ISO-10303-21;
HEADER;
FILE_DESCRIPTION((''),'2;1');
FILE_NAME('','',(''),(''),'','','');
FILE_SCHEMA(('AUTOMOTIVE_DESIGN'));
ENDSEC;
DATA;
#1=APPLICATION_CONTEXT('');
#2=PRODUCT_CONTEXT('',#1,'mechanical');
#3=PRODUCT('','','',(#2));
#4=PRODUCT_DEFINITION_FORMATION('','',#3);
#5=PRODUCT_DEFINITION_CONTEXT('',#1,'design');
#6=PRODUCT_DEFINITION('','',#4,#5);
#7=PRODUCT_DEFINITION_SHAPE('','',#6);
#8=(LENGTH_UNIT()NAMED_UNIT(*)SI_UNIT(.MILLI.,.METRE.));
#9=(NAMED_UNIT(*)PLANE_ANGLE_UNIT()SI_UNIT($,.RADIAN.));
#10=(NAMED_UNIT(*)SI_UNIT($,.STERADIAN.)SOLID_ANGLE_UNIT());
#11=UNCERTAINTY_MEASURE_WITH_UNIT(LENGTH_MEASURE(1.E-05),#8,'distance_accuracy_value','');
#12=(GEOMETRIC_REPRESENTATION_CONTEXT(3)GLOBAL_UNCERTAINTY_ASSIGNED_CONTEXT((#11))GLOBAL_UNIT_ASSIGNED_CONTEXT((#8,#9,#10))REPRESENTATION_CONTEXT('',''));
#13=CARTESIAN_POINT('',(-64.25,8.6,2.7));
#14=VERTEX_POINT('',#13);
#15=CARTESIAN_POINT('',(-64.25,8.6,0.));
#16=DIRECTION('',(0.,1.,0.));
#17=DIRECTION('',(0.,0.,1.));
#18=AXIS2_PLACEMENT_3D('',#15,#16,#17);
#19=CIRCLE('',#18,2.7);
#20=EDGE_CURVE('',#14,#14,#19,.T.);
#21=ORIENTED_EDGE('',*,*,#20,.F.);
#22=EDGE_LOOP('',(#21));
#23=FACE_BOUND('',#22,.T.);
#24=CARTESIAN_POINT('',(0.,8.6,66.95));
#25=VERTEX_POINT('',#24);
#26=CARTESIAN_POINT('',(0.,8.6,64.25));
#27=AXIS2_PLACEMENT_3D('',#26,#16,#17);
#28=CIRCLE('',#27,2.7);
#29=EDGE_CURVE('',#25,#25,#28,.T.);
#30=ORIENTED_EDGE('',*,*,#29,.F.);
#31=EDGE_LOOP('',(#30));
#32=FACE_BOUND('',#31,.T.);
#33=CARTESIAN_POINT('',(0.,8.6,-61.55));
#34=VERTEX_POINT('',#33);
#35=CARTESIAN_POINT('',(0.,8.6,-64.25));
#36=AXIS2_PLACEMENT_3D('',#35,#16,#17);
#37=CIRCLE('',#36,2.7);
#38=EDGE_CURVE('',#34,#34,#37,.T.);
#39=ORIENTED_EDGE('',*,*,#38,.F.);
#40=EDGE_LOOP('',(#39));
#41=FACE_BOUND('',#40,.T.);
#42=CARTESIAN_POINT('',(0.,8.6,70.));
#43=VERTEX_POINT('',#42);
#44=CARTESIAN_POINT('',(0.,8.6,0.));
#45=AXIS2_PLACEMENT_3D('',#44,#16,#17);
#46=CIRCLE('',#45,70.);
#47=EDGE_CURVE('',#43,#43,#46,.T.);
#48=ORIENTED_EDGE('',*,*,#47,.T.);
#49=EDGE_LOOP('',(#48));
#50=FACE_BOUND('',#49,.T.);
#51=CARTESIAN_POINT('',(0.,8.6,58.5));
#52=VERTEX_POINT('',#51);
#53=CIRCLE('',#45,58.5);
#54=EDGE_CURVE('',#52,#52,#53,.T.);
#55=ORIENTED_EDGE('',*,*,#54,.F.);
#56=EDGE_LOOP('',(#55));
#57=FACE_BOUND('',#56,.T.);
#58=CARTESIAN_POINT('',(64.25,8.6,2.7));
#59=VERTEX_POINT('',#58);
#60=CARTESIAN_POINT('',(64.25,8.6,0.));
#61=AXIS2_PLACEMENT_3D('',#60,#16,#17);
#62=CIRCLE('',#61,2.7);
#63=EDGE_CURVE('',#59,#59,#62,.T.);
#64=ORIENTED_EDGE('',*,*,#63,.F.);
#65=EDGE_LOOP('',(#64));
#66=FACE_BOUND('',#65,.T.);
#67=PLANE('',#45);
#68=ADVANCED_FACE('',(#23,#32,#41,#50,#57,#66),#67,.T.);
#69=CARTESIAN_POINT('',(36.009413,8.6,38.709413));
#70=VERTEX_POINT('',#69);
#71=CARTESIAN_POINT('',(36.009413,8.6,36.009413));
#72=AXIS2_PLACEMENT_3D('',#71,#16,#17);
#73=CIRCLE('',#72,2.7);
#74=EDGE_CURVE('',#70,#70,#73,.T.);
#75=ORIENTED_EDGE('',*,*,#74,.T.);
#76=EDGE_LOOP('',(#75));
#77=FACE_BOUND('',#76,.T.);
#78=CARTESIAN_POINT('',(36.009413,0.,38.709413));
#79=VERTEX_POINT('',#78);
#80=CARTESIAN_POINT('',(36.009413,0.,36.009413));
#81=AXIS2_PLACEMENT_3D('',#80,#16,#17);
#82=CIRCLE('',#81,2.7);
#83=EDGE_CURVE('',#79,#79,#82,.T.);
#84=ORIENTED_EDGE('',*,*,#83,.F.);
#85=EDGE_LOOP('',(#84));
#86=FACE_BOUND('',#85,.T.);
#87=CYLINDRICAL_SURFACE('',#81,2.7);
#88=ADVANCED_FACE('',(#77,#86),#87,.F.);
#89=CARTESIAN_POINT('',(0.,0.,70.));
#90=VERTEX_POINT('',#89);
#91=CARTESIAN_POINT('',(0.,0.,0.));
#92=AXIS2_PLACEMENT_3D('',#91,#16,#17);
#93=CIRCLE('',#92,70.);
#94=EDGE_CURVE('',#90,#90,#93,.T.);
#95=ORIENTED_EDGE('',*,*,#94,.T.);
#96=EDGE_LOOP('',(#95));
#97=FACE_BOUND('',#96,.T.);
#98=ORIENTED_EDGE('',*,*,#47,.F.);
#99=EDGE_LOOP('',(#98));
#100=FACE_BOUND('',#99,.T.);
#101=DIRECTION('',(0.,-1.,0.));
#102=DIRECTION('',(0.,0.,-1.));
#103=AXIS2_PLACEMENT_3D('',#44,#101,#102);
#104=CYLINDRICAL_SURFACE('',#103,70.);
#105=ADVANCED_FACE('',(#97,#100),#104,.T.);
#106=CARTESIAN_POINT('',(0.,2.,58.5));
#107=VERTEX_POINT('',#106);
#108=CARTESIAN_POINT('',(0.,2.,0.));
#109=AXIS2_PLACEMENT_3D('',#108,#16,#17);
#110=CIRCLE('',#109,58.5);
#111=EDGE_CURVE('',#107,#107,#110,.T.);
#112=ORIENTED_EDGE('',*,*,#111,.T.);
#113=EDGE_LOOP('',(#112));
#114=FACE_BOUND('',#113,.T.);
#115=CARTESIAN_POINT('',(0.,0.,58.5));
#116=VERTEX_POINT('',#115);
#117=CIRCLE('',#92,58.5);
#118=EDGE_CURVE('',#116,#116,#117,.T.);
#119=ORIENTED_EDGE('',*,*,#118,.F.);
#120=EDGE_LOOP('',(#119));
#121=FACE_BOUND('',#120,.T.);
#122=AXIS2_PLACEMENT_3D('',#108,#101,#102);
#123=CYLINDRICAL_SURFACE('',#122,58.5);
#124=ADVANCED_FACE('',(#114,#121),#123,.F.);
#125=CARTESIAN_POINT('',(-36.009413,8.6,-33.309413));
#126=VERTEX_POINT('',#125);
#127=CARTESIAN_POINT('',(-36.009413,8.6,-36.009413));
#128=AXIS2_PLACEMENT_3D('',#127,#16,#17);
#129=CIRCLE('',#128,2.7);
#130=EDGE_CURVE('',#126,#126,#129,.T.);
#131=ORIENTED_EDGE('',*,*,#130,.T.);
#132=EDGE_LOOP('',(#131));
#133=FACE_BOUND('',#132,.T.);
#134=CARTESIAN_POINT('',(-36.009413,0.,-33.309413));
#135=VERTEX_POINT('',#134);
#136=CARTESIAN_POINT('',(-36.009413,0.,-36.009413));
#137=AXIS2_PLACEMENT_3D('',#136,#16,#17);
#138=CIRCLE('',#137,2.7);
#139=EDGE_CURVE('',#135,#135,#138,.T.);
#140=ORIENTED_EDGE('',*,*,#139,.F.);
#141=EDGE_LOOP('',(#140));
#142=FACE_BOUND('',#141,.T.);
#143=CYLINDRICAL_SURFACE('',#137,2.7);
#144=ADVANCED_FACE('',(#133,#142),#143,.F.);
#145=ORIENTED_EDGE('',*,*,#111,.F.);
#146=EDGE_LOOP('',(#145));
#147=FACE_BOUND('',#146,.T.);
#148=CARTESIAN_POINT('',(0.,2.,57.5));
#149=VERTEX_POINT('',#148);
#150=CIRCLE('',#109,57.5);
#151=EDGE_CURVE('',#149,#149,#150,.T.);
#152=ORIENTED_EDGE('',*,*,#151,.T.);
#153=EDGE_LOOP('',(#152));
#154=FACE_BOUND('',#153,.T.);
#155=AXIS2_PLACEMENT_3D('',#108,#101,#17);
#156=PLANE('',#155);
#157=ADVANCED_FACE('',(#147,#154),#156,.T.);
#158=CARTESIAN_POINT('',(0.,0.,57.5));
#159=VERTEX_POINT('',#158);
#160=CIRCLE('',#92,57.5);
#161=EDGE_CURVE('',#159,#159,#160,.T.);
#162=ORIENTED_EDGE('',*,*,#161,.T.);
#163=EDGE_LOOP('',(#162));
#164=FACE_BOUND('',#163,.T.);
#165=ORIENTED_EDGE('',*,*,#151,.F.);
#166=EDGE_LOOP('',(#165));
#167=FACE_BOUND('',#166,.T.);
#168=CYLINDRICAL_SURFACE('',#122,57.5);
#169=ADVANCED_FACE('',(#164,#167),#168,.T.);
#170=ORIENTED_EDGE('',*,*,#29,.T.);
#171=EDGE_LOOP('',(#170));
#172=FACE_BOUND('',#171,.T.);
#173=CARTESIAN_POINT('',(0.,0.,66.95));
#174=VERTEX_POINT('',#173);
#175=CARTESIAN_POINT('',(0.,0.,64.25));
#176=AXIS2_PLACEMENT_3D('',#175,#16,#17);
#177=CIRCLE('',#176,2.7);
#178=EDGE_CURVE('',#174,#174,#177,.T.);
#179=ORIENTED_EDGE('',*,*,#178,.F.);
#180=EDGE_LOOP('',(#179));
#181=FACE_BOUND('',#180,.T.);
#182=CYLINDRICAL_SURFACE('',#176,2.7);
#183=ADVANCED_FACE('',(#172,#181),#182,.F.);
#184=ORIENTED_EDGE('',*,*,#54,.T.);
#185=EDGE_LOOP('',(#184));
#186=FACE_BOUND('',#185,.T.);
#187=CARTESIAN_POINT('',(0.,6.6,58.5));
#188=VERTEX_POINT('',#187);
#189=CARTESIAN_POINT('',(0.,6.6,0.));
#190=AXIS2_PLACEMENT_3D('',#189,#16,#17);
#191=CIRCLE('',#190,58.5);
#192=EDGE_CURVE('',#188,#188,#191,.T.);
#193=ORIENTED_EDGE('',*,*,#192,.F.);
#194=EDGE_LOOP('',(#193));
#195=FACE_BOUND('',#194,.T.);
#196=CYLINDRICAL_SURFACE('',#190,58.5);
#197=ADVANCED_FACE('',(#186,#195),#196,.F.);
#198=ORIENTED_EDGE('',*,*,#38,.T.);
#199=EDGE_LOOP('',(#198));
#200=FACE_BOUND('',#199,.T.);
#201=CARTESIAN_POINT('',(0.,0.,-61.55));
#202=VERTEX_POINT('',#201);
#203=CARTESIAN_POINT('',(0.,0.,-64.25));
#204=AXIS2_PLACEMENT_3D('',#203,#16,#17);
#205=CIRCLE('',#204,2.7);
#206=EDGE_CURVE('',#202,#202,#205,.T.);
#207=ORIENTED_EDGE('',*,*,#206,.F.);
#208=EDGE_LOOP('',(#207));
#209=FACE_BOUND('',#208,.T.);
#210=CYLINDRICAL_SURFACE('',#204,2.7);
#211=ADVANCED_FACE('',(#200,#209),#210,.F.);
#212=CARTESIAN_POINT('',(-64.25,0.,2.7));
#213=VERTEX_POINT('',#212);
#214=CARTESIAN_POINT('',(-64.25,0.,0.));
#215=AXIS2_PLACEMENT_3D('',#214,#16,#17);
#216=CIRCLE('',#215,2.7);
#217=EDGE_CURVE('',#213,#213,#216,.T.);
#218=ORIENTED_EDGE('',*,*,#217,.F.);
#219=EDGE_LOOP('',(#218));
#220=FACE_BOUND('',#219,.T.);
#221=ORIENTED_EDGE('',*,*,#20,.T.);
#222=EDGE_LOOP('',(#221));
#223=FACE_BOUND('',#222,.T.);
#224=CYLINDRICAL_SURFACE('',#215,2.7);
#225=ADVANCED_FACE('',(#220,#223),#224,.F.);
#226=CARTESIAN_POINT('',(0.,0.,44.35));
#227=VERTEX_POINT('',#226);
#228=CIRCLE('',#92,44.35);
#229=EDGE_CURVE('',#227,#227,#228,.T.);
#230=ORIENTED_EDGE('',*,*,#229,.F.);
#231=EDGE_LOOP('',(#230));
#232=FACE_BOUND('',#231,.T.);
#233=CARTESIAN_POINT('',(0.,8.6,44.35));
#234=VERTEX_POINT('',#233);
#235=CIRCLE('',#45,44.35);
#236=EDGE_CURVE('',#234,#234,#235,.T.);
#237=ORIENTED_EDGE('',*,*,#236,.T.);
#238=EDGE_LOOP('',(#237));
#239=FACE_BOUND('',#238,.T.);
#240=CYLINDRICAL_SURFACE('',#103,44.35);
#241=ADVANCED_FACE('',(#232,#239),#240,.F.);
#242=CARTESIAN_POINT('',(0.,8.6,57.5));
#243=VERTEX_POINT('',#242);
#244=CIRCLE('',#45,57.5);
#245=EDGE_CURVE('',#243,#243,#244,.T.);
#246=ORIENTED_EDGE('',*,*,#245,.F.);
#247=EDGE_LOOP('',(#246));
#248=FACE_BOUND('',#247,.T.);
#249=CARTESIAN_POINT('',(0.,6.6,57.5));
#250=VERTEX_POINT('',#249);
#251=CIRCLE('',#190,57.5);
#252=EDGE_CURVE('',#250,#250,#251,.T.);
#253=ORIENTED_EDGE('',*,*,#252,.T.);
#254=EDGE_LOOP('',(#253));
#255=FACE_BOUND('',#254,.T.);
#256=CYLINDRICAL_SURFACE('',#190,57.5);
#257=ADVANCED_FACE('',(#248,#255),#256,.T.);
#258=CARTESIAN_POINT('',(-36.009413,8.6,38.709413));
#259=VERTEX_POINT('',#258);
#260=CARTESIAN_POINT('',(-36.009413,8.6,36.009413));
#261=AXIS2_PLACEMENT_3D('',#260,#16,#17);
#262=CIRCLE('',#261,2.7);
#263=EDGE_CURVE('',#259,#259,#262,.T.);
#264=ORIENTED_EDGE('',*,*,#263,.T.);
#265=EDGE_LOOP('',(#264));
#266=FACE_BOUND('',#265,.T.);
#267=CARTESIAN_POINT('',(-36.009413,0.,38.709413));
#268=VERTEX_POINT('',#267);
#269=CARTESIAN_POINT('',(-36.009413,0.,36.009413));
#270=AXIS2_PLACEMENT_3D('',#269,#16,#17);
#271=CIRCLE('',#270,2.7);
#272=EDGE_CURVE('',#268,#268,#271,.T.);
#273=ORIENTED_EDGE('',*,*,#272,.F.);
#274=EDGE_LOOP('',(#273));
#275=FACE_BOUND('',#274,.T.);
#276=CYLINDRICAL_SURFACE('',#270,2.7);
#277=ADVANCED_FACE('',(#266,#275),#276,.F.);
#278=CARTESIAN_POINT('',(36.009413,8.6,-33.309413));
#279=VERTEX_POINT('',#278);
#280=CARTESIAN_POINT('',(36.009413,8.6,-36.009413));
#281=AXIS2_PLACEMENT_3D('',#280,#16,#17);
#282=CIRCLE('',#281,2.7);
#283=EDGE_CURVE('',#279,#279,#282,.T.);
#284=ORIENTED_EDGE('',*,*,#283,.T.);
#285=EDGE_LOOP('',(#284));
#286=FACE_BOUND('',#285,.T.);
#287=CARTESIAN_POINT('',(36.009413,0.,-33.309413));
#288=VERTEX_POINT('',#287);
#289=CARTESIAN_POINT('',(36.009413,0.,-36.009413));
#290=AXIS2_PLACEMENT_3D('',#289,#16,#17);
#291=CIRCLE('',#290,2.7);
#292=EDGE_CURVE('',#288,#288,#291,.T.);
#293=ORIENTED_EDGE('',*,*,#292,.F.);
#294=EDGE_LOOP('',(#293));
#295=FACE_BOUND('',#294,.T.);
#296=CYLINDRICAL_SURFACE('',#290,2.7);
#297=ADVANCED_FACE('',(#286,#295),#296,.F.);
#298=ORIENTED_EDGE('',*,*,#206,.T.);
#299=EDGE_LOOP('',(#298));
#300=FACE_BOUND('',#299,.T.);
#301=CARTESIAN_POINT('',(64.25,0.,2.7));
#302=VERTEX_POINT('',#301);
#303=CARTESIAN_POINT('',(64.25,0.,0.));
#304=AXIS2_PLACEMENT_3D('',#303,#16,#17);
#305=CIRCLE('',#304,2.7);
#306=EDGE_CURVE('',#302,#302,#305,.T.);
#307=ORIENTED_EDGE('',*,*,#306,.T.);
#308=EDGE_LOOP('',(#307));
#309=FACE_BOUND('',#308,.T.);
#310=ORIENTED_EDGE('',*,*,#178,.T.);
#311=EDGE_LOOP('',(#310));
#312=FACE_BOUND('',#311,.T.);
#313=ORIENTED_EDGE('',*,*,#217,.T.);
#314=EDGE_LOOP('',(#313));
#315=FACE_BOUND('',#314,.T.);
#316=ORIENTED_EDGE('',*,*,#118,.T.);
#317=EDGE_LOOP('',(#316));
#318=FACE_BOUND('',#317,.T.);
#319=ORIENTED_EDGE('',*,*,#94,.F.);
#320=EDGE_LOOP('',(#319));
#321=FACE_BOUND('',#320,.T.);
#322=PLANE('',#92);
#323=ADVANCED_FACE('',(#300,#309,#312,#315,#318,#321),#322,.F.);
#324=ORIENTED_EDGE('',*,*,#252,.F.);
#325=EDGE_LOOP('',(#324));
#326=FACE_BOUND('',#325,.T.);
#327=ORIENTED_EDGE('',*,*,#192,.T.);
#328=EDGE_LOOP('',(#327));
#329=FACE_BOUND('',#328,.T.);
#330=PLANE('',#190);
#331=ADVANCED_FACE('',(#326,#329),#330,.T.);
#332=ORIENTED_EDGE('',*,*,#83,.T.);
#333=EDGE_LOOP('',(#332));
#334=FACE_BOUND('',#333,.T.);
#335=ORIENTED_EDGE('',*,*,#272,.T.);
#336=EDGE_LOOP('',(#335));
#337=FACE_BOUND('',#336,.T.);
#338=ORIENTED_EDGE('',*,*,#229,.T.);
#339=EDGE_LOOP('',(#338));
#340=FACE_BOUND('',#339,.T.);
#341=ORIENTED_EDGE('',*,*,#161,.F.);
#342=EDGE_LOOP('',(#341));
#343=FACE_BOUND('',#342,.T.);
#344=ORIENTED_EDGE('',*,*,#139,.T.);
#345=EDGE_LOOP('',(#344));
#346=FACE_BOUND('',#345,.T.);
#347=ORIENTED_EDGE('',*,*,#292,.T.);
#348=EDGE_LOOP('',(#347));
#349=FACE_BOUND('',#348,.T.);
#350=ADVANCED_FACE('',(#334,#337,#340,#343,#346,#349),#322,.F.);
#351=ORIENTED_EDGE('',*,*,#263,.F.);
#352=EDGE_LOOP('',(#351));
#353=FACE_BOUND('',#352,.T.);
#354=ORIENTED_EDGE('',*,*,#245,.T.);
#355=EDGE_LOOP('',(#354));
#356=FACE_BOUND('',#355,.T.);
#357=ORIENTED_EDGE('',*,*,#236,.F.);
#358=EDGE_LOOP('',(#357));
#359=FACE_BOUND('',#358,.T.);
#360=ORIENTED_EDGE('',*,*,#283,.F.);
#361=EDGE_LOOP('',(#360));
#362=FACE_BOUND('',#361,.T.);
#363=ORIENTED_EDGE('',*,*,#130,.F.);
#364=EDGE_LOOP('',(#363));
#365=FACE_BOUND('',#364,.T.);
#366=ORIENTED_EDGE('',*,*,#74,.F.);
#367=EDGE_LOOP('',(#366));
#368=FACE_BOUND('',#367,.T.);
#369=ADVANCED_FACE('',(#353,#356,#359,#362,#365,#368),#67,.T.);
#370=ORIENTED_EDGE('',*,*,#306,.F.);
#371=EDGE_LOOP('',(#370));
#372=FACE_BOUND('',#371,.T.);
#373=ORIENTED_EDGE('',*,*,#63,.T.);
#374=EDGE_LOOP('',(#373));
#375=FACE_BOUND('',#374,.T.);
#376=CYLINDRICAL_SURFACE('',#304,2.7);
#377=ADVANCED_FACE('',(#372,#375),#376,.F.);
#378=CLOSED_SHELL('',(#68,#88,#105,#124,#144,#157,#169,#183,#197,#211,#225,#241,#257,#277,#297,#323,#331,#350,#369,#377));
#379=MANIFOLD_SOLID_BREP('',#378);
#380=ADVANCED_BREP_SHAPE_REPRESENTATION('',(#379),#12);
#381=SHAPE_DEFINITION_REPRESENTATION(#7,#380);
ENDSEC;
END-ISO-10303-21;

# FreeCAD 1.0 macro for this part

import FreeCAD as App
import Part
import Sketcher
from FreeCAD import Vector
Q = App.Units.Quantity

doc = App.newDocument("Part")
body = doc.addObject("PartDesign::Body", "Body")

# Sketch on XZ plane
sketch1 = body.newObject("Sketcher::SketchObject", "Sketch")
sketch1.AttachmentSupport = (doc.getObject("XZ_Plane"), [""])
sketch1.MapMode = "FlatFace"
sketch1.addGeometry([
    Part.Circle(Vector(0, 0, 0), Vector(0, 0, 1), 70),
    Part.Circle(Vector(0, 0, 0), Vector(0, 0, 1), 44),
], False)
sketch1.addConstraint([
    Sketcher.Constraint("Coincident", 0, 3, -1, 1),
    Sketcher.Constraint("Coincident", 1, 3, -1, 1),
    Sketcher.Constraint("Diameter", 0, Q("140 mm")),
    Sketcher.Constraint("Diameter", 1, Q("88.7 mm")),
])
pad1 = body.newObject("PartDesign::Pad", "Pad")
pad1.Profile = sketch1
pad1.Length = 8.6
pad1.Reversed = True

# Sketch on XZ plane
sketch2 = body.newObject("Sketcher::SketchObject", "Sketch001")
sketch2.AttachmentSupport = (doc.getObject("XZ_Plane"), [""])
sketch2.MapMode = "FlatFace"
sketch2.AttachmentOffset = App.Placement(Vector(0, 0, -8.6), App.Rotation())
sketch2.addGeometry([
    Part.Circle(Vector(0, 0, 0), Vector(0, 0, 1), 58),
    Part.Circle(Vector(0, 0, 0), Vector(0, 0, 1), 58),
], False)
sketch2.addConstraint([
    Sketcher.Constraint("Coincident", 0, 3, -1, 1),
    Sketcher.Constraint("Coincident", 1, 3, -1, 1),
    Sketcher.Constraint("Diameter", 0, Q("117 mm")),
    Sketcher.Constraint("Diameter", 1, Q("115 mm")),
])
pocket1 = body.newObject("PartDesign::Pocket", "Pocket")
pocket1.Profile = sketch2
pocket1.Length = 2
pocket1.Reversed = True
doc.recompute()

datumplane = body.newObject("PartDesign::Plane", "DatumPlane")
datumplane.AttachmentSupport = (doc.getObject("XZ_Plane"), [""])
datumplane.MapMode = "FlatFace"
datumplane.AttachmentOffset = App.Placement(Vector(0, 0, -4.3), App.Rotation())
mirrored = body.newObject("PartDesign::Mirrored", "Mirrored")
mirrored.Originals = [pocket1]
mirrored.MirrorPlane = (datumplane, [""])
body.Tip = mirrored

# Sketch on XZ plane
sketch3 = body.newObject("Sketcher::SketchObject", "Sketch002")
sketch3.AttachmentSupport = (doc.getObject("XZ_Plane"), [""])
sketch3.MapMode = "FlatFace"
sketch3.AttachmentOffset = App.Placement(Vector(0, 0, -8.6), App.Rotation())
sketch3.addGeometry([
    Part.Circle(Vector(0, -64.2, 0), Vector(0, 0, 1), 2.7),
    Part.Circle(Vector(64.2, 0, 0), Vector(0, 0, 1), 2.7),
    Part.Circle(Vector(0, 64.2, 0), Vector(0, 0, 1), 2.7),
    Part.Circle(Vector(-64.2, 0, 0), Vector(0, 0, 1), 2.7),
], False)
sketch3.addConstraint([
    Sketcher.Constraint("Equal", 0, 1),
    Sketcher.Constraint("Equal", 1, 2),
    Sketcher.Constraint("Equal", 2, 3),
    Sketcher.Constraint("Symmetric", 0, 3, 2, 3, -1, 1),
    Sketcher.Constraint("Symmetric", 1, 3, 3, 3, -1, 1),
    Sketcher.Constraint("PointOnObject", 0, 3, -2),
    Sketcher.Constraint("PointOnObject", 1, 3, -1),
    Sketcher.Constraint("Diameter", 0, Q("5.4 mm")),
    Sketcher.Constraint("DistanceY", 0, 3, 2, 3, Q("128.5 mm")),
    Sketcher.Constraint("DistanceX", 3, 3, 1, 3, Q("128.5 mm")),
])
pocket2 = body.newObject("PartDesign::Pocket", "Pocket001")
pocket2.Profile = sketch3
pocket2.Type = "ThroughAll"
pocket2.Reversed = True

# Sketch on XZ plane
sketch4 = body.newObject("Sketcher::SketchObject", "Sketch003")
sketch4.AttachmentSupport = (doc.getObject("XZ_Plane"), [""])
sketch4.MapMode = "FlatFace"
sketch4.AttachmentOffset = App.Placement(Vector(0, 0, -8.6), App.Rotation())
sketch4.addGeometry([
    Part.Circle(Vector(-36, -36, 0), Vector(0, 0, 1), 2.7),
    Part.Circle(Vector(36, -36, 0), Vector(0, 0, 1), 2.7),
    Part.Circle(Vector(36, 36, 0), Vector(0, 0, 1), 2.7),
    Part.Circle(Vector(-36, 36, 0), Vector(0, 0, 1), 2.7),
], False)
sketch4.addConstraint([
    Sketcher.Constraint("Equal", 0, 1),
    Sketcher.Constraint("Equal", 1, 2),
    Sketcher.Constraint("Equal", 2, 3),
    Sketcher.Constraint("Symmetric", 0, 3, 2, 3, -1, 1),
    Sketcher.Constraint("Symmetric", 1, 3, 3, 3, -1, 1),
    Sketcher.Constraint("Symmetric", 0, 3, 1, 3, -2),
    Sketcher.Constraint("Diameter", 0, Q("5.4 mm")),
    Sketcher.Constraint("DistanceX", 0, 3, -1, 1, Q("36.009413 mm")),
    Sketcher.Constraint("DistanceY", 0, 3, -1, 1, Q("36.009413 mm")),
])
pocket3 = body.newObject("PartDesign::Pocket", "Pocket002")
pocket3.Profile = sketch4
pocket3.Type = "ThroughAll"
pocket3.Reversed = True

doc.recompute()
